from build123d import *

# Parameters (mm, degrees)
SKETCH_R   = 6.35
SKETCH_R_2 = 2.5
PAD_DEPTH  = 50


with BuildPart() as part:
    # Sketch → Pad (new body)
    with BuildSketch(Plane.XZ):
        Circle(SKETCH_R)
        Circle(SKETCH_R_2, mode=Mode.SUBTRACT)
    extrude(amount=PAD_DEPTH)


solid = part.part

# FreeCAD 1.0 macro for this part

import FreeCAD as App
import Part
import Sketcher
from FreeCAD import Vector

doc = App.newDocument("Part")
params = doc.addObject("Spreadsheet::Sheet", "Params")
for row, (alias, value) in enumerate([
    ("sketch1_diameter", "5 mm"),
    ("sketch1_diameter2", "12.7 mm"),
    ("pad1_length", "50 mm"),
], start=1):
    params.set(f"A{row}", alias)
    params.set(f"B{row}", "=" + value)
    params.setAlias(f"B{row}", alias)

body = doc.addObject("PartDesign::Body", "Body")

sketch1 = body.newObject("Sketcher::SketchObject", "Sketch")
sketch1.AttachmentSupport = (doc.getObject("XZ_Plane"), [""])
sketch1.MapMode = "FlatFace"
sketch1.addGeometry([
    Part.Circle(Vector(0, 0, 0), Vector(0, 0, 1), 6.3),
    Part.Circle(Vector(0, 0, 0), Vector(0, 0, 1), 2.5),
], False)
sketch1.addConstraint([
    Sketcher.Constraint("Coincident", 0, 3, -1, 1),
    Sketcher.Constraint("Coincident", 1, 3, -1, 1),
    Sketcher.Constraint("Diameter", 1, 5.0),
    Sketcher.Constraint("Diameter", 0, 12.7),
])
sketch1.setExpression("Constraints[2]", "Params.sketch1_diameter")
sketch1.setExpression("Constraints[3]", "Params.sketch1_diameter2")
pad1 = body.newObject("PartDesign::Pad", "Pad")
pad1.Profile = sketch1
pad1.setExpression("Length", "Params.pad1_length")

doc.recompute()
